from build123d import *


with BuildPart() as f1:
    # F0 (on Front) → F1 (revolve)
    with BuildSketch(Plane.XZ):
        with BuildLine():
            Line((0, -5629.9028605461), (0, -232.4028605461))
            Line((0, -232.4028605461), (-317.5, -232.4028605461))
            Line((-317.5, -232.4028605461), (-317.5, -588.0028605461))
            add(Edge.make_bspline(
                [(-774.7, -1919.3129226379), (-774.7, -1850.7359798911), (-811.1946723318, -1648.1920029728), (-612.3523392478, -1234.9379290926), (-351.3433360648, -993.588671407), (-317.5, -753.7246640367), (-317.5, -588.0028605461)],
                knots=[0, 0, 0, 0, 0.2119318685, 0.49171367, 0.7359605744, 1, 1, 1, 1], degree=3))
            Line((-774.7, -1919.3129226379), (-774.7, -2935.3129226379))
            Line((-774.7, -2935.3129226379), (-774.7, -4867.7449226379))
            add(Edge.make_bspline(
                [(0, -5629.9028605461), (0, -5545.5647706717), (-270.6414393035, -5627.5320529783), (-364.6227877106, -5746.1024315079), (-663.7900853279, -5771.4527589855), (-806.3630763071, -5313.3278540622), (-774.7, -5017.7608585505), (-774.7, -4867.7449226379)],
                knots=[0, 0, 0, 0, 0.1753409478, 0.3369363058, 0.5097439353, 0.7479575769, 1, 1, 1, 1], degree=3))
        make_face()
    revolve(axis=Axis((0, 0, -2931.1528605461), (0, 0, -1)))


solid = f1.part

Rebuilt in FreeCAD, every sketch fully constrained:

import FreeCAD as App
import Part
import Sketcher
from FreeCAD import Vector
Q = App.Units.Quantity

doc = App.newDocument("Part")
params = doc.addObject("Spreadsheet::Sheet", "Params")
for row, (alias, value) in enumerate([
    ("sketch1_height", "14 in"),
    ("revolution_angle", "360 deg"),
], start=1):
    params.set(f"A{row}", alias)
    params.set(f"B{row}", "=" + value)
    params.setAlias(f"B{row}", alias)

body = doc.addObject("PartDesign::Body", "Body")

# Sketch on XZ plane
sketch1 = body.newObject("Sketcher::SketchObject", "Sketch")
sketch1.AttachmentSupport = (doc.getObject("XZ_Plane"), [""])
sketch1.MapMode = "FlatFace"
sketch1.addGeometry(Part.LineSegment(Vector(0, -5629.902861, 0), Vector(0, -232.402861, 0)), False)
sketch1.addGeometry(Part.LineSegment(Vector(0, -232.402861, 0), Vector(-317.5, -232.402861, 0)), False)
sketch1.addGeometry(Part.LineSegment(Vector(-317.5, -232.402861, 0), Vector(-317.5, -588.002861, 0)), False)
sketch1.addGeometry(Part.BSplineCurve([Vector(-774.7, -1919.312923, 0), Vector(-774.7, -1850.73598, 0), Vector(-811.194672, -1648.192003, 0), Vector(-612.352339, -1234.937929, 0), Vector(-351.343336, -993.588671, 0), Vector(-317.5, -753.724664, 0), Vector(-317.5, -588.002861, 0)], [4, 1, 1, 1, 4], [0, 0.211931869, 0.49171367, 0.735960574, 1], False, 3, [1, 1, 1, 1, 1, 1, 1], False), False)
sketch1.addGeometry(Part.LineSegment(Vector(-774.7, -1919.312923, 0), Vector(-774.7, -4867.744923, 0)), False)
sketch1.addGeometry(Part.BSplineCurve([Vector(0, -5629.902861, 0), Vector(0, -5545.564771, 0), Vector(-270.641439, -5627.532053, 0), Vector(-364.622788, -5746.102432, 0), Vector(-663.790085, -5771.452759, 0), Vector(-806.363076, -5313.327854, 0), Vector(-774.7, -5017.760859, 0), Vector(-774.7, -4867.744923, 0)], [4, 1, 1, 1, 1, 4], [0, 0.175340948, 0.336936306, 0.509743935, 0.747957577, 1], False, 3, [1, 1, 1, 1, 1, 1, 1, 1], False), False)
sketch1.addConstraint(Sketcher.Constraint("Block", 3))
sketch1.addConstraint(Sketcher.Constraint("Block", 5))
sketch1.addConstraint(Sketcher.Constraint("Coincident", 0, 2, 1, 1))
sketch1.addConstraint(Sketcher.Constraint("Coincident", 1, 2, 2, 1))
sketch1.addConstraint(Sketcher.Constraint("Coincident", 2, 2, 3, 2))
sketch1.addConstraint(Sketcher.Constraint("Coincident", 3, 1, 4, 1))
sketch1.addConstraint(Sketcher.Constraint("Coincident", 4, 2, 5, 2))
sketch1.addConstraint(Sketcher.Constraint("Coincident", 5, 1, 0, 1))
sketch1.addConstraint(Sketcher.Constraint("Vertical", 0))
sketch1.addConstraint(Sketcher.Constraint("Horizontal", 1))
sketch1.addConstraint(Sketcher.Constraint("Vertical", 2))
sketch1.addConstraint(Sketcher.Constraint("DistanceY", 2, 2, 2, 1, Q("14 in")))
sketch1.setExpression("Constraints[11]", "Params.sketch1_height")
revolution = body.newObject("PartDesign::Revolution", "Revolution")
revolution.Profile = sketch1
revolution.ReferenceAxis = (sketch1, ["V_Axis"])
revolution.setExpression("Angle", "Params.revolution_angle")

doc.recompute()
